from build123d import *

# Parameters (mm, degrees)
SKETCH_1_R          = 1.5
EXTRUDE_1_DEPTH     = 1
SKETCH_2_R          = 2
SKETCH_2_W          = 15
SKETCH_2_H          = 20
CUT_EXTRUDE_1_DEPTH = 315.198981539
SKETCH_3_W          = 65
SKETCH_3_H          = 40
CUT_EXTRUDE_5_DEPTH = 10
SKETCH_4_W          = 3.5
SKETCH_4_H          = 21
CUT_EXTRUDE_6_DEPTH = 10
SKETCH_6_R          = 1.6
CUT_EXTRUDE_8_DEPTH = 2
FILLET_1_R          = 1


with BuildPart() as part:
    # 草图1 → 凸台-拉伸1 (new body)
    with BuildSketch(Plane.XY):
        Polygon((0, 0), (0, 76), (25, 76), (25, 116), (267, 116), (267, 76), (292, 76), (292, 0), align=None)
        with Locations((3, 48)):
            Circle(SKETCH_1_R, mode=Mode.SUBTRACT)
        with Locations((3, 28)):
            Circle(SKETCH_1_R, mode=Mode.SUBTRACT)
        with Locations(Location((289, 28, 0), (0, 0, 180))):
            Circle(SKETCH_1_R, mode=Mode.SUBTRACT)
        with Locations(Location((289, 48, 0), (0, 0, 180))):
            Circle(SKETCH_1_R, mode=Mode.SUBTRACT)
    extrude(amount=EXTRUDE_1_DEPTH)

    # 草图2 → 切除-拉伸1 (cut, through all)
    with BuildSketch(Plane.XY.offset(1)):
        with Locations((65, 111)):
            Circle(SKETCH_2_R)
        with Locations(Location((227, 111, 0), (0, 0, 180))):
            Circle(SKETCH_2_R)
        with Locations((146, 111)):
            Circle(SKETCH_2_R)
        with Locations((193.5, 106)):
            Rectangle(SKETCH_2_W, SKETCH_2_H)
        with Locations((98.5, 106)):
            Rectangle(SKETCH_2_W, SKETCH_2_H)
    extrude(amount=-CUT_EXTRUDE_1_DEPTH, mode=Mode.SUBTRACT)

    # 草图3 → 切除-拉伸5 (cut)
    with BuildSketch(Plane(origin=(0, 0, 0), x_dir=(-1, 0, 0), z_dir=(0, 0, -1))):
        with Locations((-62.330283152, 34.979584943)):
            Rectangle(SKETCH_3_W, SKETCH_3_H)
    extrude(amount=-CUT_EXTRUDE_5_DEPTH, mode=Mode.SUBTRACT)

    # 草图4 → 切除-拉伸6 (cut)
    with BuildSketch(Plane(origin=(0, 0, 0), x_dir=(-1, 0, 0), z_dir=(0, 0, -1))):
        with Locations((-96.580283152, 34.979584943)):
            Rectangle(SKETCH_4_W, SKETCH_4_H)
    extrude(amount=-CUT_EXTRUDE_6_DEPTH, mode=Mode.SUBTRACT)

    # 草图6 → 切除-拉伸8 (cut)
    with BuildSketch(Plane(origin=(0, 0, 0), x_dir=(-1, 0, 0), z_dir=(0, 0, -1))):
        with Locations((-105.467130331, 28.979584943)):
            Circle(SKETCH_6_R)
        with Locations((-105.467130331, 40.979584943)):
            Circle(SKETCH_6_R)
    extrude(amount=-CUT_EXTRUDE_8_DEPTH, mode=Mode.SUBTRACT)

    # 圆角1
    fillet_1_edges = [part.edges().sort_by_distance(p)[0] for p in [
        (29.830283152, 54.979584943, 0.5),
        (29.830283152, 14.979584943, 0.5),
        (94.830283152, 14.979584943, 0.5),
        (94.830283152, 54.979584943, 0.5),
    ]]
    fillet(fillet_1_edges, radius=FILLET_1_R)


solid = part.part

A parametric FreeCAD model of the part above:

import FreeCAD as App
import Part
import Sketcher

V = App.Vector


def edges_at(feature, points):
    """Names of the edges that pass closest to the given points."""
    edges = feature.Shape.Edges
    near = lambda p: min(range(len(edges)), key=lambda i: edges[i].distToShape(Part.Vertex(*p))[0])
    return sorted({f"Edge{near(p) + 1}" for p in points})


def add_polygon(sketch, points):
    """Adds a closed chain of lines whose ends are joined by coincident constraints."""
    first, n = sketch.GeometryCount, len(points)
    for a, b in zip(points, points[1:] + points[:1]):
        sketch.addGeometry(Part.LineSegment(App.Vector(*a, 0), App.Vector(*b, 0)), False)
    for i in range(n):
        sketch.addConstraint(Sketcher.Constraint("Coincident", first + i, 2, first + (i + 1) % n, 1))

doc = App.newDocument("Part")
body = doc.addObject("PartDesign::Body", "Body")

# Sketch on XY plane
sketch1 = body.newObject("Sketcher::SketchObject", "Sketch")
sketch1.AttachmentSupport = (doc.getObject("XY_Plane"), [""])
sketch1.MapMode = "FlatFace"
add_polygon(sketch1, [(0, 76), (0, 0), (292, 0), (292, 76), (267, 76), (267, 116), (25, 116), (25, 76)])  # lines 0-7
sketch1.addGeometry(Part.Circle(V(289, 28, 0), V(0, 0, 1), 1.5), False)  # 8
sketch1.addGeometry(Part.Circle(V(3, 28, 0), V(0, 0, 1), 1.5), False)  # 9
sketch1.addGeometry(Part.Circle(V(289, 48, 0), V(0, 0, 1), 1.5), False)  # 10
sketch1.addGeometry(Part.Circle(V(3, 48, 0), V(0, 0, 1), 1.5), False)  # 11
sketch1.addConstraint([
    Sketcher.Constraint("Vertical", 0),
    Sketcher.Constraint("Horizontal", 1),
    Sketcher.Constraint("Vertical", 2),
    Sketcher.Constraint("Horizontal", 3),
    Sketcher.Constraint("Vertical", 4),
    Sketcher.Constraint("Horizontal", 5),
    Sketcher.Constraint("Vertical", 6),
    Sketcher.Constraint("Horizontal", 7),
    Sketcher.Constraint("Coincident", 0, 2, -1, 1),
    Sketcher.Constraint("Equal", 8, 9),
    Sketcher.Constraint("Equal", 9, 10),
    Sketcher.Constraint("Equal", 10, 11),
    Sketcher.Constraint("Horizontal", 8, 3, 9, 3),
    Sketcher.Constraint("Horizontal", 10, 3, 11, 3),
    Sketcher.Constraint("Horizontal", 3, 2, 6, 2),
    Sketcher.Constraint("Vertical", 8, 3, 10, 3),
    Sketcher.Constraint("Vertical", 9, 3, 11, 3),
    Sketcher.Constraint("Equal", 3, 7),
    Sketcher.Constraint("Diameter", 8, 3.0),
    Sketcher.Constraint("DistanceX", 1, 1, 1, 2, 292.0),
    Sketcher.Constraint("DistanceX", 3, 2, 3, 1, 25.0),
    Sketcher.Constraint("DistanceY", 0, 2, 0, 1, 76.0),
    Sketcher.Constraint("DistanceY", 4, 1, 4, 2, 40.0),
    Sketcher.Constraint("DistanceX", -1, 1, 8, 3, 289.0),
    Sketcher.Constraint("DistanceY", -1, 1, 8, 3, 28.0),
    Sketcher.Constraint("DistanceX", -1, 1, 9, 3, 3.0),
    Sketcher.Constraint("DistanceY", -1, 1, 10, 3, 48.0),
])
pad1 = body.newObject("PartDesign::Pad", "Pad")
pad1.Profile = sketch1
pad1.Length = 1

# Sketch on XY plane
sketch2 = body.newObject("Sketcher::SketchObject", "Sketch001")
sketch2.AttachmentSupport = (doc.getObject("XY_Plane"), [""])
sketch2.MapMode = "FlatFace"
sketch2.AttachmentOffset = App.Placement(V(0, 0, 1), App.Rotation())
sketch2.addGeometry(Part.Circle(V(65, 111, 0), V(0, 0, 1), 2), False)  # 0
sketch2.addGeometry(Part.Circle(V(227, 111, 0), V(0, 0, 1), 2), False)  # 1
sketch2.addGeometry(Part.Circle(V(146, 111, 0), V(0, 0, 1), 2), False)  # 2
add_polygon(sketch2, [(186, 116), (186, 96), (201, 96), (201, 116)])  # lines 3-6
add_polygon(sketch2, [(91, 116), (91, 96), (106, 96), (106, 116)])  # lines 7-10
sketch2.addConstraint([
    Sketcher.Constraint("Vertical", 3),
    Sketcher.Constraint("Horizontal", 4),
    Sketcher.Constraint("Vertical", 5),
    Sketcher.Constraint("Horizontal", 6),
    Sketcher.Constraint("Vertical", 7),
    Sketcher.Constraint("Horizontal", 8),
    Sketcher.Constraint("Vertical", 9),
    Sketcher.Constraint("Horizontal", 10),
    Sketcher.Constraint("Equal", 0, 1),
    Sketcher.Constraint("Equal", 1, 2),
    Sketcher.Constraint("Horizontal", 0, 3, 1, 3),
    Sketcher.Constraint("Horizontal", 1, 3, 2, 3),
    Sketcher.Constraint("Horizontal", 4, 2, 7, 2),
    Sketcher.Constraint("Horizontal", 6, 2, 9, 2),
    Sketcher.Constraint("Equal", 6, 8),
    Sketcher.Constraint("Diameter", 0, 4.0),
    Sketcher.Constraint("DistanceX", 4, 1, 4, 2, 15.0),
    Sketcher.Constraint("DistanceY", 3, 2, 3, 1, 20.0),
    Sketcher.Constraint("DistanceX", -1, 1, 0, 3, 65.0),
    Sketcher.Constraint("DistanceY", -1, 1, 0, 3, 111.0),
    Sketcher.Constraint("DistanceX", -1, 1, 1, 3, 227.0),
    Sketcher.Constraint("DistanceX", -1, 1, 2, 3, 146.0),
    Sketcher.Constraint("DistanceX", -1, 1, 3, 2, 186.0),
    Sketcher.Constraint("DistanceY", -1, 1, 3, 2, 96.0),
    Sketcher.Constraint("DistanceX", -1, 1, 7, 2, 91.0),
])
pocket1 = body.newObject("PartDesign::Pocket", "Pocket")
pocket1.Profile = sketch2
pocket1.Type = "ThroughAll"

# Sketch on XY plane
sketch3 = body.newObject("Sketcher::SketchObject", "Sketch002")
sketch3.AttachmentSupport = (doc.getObject("XY_Plane"), [""])
sketch3.MapMode = "FlatFace"
add_polygon(sketch3, [(95, 55), (95, 15), (30, 15), (30, 55)])  # lines 0-3
sketch3.addConstraint([
    Sketcher.Constraint("Vertical", 0),
    Sketcher.Constraint("Horizontal", 1),
    Sketcher.Constraint("Vertical", 2),
    Sketcher.Constraint("Horizontal", 3),
    Sketcher.Constraint("DistanceX", 1, 2, 1, 1, 65.0),
    Sketcher.Constraint("DistanceY", 0, 2, 0, 1, 40.0),
    Sketcher.Constraint("DistanceX", -1, 1, 0, 2, 94.830283),
    Sketcher.Constraint("DistanceY", -1, 1, 0, 2, 14.979585),
])
pocket2 = body.newObject("PartDesign::Pocket", "Pocket001")
pocket2.Profile = sketch3
pocket2.Length = 10
pocket2.Reversed = True

# Sketch on XY plane
sketch4 = body.newObject("Sketcher::SketchObject", "Sketch003")
sketch4.AttachmentSupport = (doc.getObject("XY_Plane"), [""])
sketch4.MapMode = "FlatFace"
add_polygon(sketch4, [(98.3, 45.5), (98.3, 24.5), (94.8, 24.5), (94.8, 45.5)])  # lines 0-3
sketch4.addConstraint([
    Sketcher.Constraint("Vertical", 0),
    Sketcher.Constraint("Horizontal", 1),
    Sketcher.Constraint("Vertical", 2),
    Sketcher.Constraint("Horizontal", 3),
    Sketcher.Constraint("DistanceY", 0, 2, 0, 1, 21.0),
    Sketcher.Constraint("DistanceX", 1, 2, 1, 1, 3.5),
    Sketcher.Constraint("DistanceX", -1, 1, 0, 2, 98.330283),
    Sketcher.Constraint("DistanceY", -1, 1, 0, 2, 24.479585),
])
pocket3 = body.newObject("PartDesign::Pocket", "Pocket002")
pocket3.Profile = sketch4
pocket3.Length = 10
pocket3.Reversed = True

# Sketch on XY plane
sketch5 = body.newObject("Sketcher::SketchObject", "Sketch004")
sketch5.AttachmentSupport = (doc.getObject("XY_Plane"), [""])
sketch5.MapMode = "FlatFace"
sketch5.addGeometry([
    Part.Circle(V(105.5, 29, 0), V(0, 0, 1), 1.6),
    Part.Circle(V(105.5, 41, 0), V(0, 0, 1), 1.6),
], False)
sketch5.addConstraint([
    Sketcher.Constraint("Equal", 0, 1),
    Sketcher.Constraint("Vertical", 0, 3, 1, 3),
    Sketcher.Constraint("Diameter", 0, 3.2),
    Sketcher.Constraint("DistanceY", 0, 3, 1, 3, 12.0),
    Sketcher.Constraint("DistanceX", -1, 1, 0, 3, 105.46713),
    Sketcher.Constraint("DistanceY", -1, 1, 0, 3, 28.979585),
])
pocket4 = body.newObject("PartDesign::Pocket", "Pocket003")
pocket4.Profile = sketch5
pocket4.Length = 2
pocket4.Reversed = True
doc.recompute()

fillet = body.newObject("PartDesign::Fillet", "Fillet")
fillet.Base = (pocket4, edges_at(pocket4, [
    (29.83, 54.98, 0.5),
    (29.83, 14.98, 0.5),
    (94.83, 14.98, 0.5),
    (94.83, 54.98, 0.5),
]))
fillet.Radius = 1

doc.recompute()
